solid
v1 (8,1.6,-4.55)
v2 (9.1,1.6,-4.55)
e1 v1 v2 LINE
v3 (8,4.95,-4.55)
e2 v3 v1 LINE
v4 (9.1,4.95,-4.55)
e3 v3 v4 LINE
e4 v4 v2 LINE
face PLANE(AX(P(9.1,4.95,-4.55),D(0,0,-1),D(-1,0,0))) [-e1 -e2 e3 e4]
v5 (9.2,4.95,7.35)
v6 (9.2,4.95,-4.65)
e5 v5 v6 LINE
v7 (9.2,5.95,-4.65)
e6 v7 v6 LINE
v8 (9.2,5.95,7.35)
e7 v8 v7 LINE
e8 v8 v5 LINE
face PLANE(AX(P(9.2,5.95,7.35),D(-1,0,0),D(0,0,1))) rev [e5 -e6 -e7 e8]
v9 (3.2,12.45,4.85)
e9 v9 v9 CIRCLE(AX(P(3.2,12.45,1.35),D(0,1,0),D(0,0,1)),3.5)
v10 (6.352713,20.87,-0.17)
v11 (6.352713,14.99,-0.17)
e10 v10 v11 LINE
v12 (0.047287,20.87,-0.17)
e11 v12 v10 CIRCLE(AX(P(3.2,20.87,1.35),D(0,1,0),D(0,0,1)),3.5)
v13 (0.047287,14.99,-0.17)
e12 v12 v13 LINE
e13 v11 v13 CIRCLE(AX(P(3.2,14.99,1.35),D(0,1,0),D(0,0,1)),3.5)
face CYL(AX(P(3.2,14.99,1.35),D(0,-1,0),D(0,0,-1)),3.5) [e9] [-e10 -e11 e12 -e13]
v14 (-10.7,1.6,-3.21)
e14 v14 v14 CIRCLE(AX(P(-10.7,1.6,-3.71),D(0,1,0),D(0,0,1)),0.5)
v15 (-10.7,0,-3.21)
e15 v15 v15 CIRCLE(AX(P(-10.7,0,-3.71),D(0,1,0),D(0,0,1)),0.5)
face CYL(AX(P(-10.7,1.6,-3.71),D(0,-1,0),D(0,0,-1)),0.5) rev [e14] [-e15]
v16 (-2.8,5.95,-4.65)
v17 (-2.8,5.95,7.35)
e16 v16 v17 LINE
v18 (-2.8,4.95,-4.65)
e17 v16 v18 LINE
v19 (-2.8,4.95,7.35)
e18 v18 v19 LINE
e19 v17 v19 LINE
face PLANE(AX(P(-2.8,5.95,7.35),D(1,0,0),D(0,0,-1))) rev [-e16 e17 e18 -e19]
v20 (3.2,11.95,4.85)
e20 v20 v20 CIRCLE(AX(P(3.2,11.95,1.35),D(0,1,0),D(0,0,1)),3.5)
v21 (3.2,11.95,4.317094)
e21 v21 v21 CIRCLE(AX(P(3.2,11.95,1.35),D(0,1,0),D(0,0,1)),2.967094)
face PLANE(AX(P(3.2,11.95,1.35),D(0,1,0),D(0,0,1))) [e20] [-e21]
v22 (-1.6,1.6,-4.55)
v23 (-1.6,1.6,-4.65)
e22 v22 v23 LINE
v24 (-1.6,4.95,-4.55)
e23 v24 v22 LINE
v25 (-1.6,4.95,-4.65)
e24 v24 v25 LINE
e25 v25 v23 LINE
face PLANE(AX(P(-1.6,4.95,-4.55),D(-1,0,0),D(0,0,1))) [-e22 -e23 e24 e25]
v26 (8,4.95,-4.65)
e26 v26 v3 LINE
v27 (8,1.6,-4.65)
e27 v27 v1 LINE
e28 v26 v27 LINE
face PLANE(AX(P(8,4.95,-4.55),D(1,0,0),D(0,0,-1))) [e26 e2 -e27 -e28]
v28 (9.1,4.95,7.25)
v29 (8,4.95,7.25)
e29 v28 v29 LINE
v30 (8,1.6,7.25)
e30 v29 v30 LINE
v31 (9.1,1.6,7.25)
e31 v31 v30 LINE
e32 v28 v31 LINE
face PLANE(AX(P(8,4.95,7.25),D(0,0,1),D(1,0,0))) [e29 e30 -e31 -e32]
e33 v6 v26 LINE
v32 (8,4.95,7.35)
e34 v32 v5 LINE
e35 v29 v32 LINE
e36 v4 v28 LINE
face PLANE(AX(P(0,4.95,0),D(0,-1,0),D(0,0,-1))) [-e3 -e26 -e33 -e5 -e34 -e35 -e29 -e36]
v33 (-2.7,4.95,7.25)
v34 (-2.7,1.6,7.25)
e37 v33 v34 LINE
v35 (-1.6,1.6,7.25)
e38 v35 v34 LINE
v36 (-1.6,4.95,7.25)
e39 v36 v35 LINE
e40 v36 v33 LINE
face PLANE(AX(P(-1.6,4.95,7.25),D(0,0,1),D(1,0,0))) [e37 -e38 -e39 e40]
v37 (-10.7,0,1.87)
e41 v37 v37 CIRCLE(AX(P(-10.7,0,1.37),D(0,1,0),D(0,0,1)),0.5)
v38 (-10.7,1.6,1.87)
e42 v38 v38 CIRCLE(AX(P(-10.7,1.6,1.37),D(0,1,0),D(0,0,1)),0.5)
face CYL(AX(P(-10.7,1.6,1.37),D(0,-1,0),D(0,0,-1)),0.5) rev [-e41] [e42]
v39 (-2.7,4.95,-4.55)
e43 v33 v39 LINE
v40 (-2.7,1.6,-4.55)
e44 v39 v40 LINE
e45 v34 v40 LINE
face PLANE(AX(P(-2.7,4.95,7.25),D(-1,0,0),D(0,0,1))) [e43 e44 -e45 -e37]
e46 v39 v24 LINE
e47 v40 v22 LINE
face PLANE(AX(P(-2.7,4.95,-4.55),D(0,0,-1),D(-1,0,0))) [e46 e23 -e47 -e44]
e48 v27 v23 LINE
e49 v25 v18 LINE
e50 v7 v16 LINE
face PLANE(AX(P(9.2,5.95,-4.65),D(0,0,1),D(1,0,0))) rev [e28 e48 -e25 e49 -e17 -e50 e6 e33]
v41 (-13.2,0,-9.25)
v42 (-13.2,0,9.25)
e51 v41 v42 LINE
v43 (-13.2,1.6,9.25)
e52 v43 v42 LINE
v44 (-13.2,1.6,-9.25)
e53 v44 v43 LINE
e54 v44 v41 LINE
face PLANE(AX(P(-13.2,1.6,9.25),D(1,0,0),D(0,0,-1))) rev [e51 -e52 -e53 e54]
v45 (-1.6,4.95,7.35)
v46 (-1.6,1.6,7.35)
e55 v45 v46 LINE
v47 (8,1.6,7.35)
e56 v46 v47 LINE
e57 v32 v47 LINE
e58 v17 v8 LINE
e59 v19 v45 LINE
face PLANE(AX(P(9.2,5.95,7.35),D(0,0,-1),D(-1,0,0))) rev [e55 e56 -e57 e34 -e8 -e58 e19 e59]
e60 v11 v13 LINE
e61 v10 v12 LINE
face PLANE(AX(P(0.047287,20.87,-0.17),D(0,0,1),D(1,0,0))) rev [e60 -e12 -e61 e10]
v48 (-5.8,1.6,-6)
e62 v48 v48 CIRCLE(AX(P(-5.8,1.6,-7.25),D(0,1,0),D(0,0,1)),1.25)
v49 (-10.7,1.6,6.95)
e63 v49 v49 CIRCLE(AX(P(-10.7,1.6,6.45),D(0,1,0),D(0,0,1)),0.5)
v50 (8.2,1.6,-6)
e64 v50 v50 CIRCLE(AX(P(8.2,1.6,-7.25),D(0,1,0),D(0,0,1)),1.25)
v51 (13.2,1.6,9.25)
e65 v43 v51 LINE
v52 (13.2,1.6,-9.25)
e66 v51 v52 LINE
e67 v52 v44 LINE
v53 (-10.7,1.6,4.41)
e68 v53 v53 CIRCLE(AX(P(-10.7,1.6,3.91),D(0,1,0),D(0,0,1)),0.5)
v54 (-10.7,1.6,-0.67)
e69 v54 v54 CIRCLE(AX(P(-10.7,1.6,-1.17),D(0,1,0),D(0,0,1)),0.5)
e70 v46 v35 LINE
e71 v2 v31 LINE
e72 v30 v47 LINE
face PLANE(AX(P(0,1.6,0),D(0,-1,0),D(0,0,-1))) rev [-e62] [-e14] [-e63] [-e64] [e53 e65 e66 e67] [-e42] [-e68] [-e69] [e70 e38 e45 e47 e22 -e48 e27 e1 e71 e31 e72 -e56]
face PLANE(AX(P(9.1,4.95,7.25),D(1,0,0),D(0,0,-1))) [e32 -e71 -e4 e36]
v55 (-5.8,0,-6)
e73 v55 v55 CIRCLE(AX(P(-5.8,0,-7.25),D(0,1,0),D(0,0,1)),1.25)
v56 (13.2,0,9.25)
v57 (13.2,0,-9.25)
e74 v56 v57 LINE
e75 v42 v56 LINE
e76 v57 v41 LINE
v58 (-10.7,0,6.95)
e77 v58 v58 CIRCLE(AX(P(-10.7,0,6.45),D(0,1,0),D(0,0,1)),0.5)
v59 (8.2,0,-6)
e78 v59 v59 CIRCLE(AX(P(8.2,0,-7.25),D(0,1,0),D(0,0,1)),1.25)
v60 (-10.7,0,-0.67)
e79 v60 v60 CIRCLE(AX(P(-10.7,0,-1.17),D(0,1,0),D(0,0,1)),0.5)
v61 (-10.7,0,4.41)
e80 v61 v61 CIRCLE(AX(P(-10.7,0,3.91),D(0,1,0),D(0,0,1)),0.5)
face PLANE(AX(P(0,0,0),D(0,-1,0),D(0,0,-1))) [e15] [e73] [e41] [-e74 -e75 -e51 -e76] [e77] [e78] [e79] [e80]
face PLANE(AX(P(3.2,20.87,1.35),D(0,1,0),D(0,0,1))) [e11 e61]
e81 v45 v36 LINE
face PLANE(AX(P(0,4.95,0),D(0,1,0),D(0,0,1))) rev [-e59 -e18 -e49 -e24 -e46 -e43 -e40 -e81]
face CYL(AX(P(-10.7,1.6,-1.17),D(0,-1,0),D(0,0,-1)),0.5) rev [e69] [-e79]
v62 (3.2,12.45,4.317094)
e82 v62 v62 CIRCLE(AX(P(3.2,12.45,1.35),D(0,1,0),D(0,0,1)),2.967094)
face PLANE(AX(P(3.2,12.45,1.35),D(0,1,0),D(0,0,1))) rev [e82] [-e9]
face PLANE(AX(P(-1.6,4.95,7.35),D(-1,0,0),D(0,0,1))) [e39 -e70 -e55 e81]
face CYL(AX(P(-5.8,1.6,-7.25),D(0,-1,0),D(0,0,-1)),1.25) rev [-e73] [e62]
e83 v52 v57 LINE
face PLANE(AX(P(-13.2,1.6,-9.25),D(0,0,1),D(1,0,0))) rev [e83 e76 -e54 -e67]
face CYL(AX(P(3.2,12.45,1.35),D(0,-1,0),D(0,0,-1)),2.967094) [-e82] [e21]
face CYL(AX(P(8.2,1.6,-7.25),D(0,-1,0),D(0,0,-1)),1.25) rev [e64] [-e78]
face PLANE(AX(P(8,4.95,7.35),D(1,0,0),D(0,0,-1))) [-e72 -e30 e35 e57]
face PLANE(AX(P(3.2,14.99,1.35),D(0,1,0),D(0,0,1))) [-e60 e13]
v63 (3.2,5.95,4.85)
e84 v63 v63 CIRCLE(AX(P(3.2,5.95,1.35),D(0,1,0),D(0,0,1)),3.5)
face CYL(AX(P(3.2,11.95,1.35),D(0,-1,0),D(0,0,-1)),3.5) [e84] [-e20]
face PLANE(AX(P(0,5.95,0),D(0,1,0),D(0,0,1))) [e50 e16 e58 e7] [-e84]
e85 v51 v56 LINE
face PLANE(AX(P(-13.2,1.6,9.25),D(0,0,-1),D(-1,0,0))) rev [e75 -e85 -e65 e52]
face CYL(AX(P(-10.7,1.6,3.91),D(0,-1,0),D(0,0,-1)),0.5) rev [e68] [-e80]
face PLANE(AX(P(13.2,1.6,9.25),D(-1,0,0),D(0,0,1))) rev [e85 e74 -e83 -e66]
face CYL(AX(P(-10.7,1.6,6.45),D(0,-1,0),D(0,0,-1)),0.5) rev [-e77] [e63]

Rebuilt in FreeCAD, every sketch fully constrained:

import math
import FreeCAD as App
import Part
import Sketcher

V = App.Vector
Q = App.Units.Quantity

doc = App.newDocument("Part")
body = doc.addObject("PartDesign::Body", "Body")

# Sketch on XZ plane
sketch1 = body.newObject("Sketcher::SketchObject", "Sketch")
sketch1.AttachmentSupport = (doc.getObject("XZ_Plane"), [""])
sketch1.MapMode = "FlatFace"
sketch1.addGeometry([
    Part.LineSegment(V(-13.2, -9.2, 0), V(-13.2, 9.2, 0)),  # 0
    Part.LineSegment(V(-13.2, 9.2, 0), V(13.2, 9.2, 0)),  # 1
    Part.LineSegment(V(13.2, 9.2, 0), V(13.2, -9.2, 0)),  # 2
    Part.LineSegment(V(13.2, -9.2, 0), V(-13.2, -9.2, 0)),  # 3
    Part.Circle(V(-10.7, 6.5, 0), V(0, 0, 1), 0.5),  # 4
    Part.Circle(V(-10.7, 3.9, 0), V(0, 0, 1), 0.5),  # 5
    Part.Circle(V(-10.7, 1.4, 0), V(0, 0, 1), 0.5),  # 6
    Part.Circle(V(-10.7, -1.2, 0), V(0, 0, 1), 0.5),  # 7
    Part.Circle(V(-10.7, -3.7, 0), V(0, 0, 1), 0.5),  # 8
    Part.Circle(V(-5.8, -7.2, 0), V(0, 0, 1), 1.2),  # 9
    Part.Circle(V(8.2, -7.2, 0), V(0, 0, 1), 1.2),  # 10
], False)
sketch1.addConstraint([
    Sketcher.Constraint("Coincident", 0, 2, 1, 1),
    Sketcher.Constraint("Coincident", 1, 2, 2, 1),
    Sketcher.Constraint("Coincident", 2, 2, 3, 1),
    Sketcher.Constraint("Coincident", 3, 2, 0, 1),
    Sketcher.Constraint("Vertical", 0),
    Sketcher.Constraint("Horizontal", 1),
    Sketcher.Constraint("Vertical", 2),
    Sketcher.Constraint("Horizontal", 3),
    Sketcher.Constraint("Equal", 4, 5),
    Sketcher.Constraint("Equal", 5, 6),
    Sketcher.Constraint("Equal", 6, 7),
    Sketcher.Constraint("Equal", 7, 8),
    Sketcher.Constraint("Equal", 9, 10),
    Sketcher.Constraint("Symmetric", 0, 2, 2, 2, -1, 1),
    Sketcher.Constraint("Horizontal", 9, 3, 10, 3),
    Sketcher.Constraint("Vertical", 4, 3, 5, 3),
    Sketcher.Constraint("Vertical", 5, 3, 6, 3),
    Sketcher.Constraint("Vertical", 6, 3, 7, 3),
    Sketcher.Constraint("Vertical", 7, 3, 8, 3),
    Sketcher.Constraint("Diameter", 4, Q("1 mm")),
    Sketcher.Constraint("Diameter", 9, Q("2.5 mm")),
    Sketcher.Constraint("DistanceX", 1, 1, 1, 2, Q("26.4 mm")),
    Sketcher.Constraint("DistanceY", 0, 1, 0, 2, Q("18.5 mm")),
    Sketcher.Constraint("DistanceX", 9, 3, 10, 3, Q("14 mm")),
    Sketcher.Constraint("DistanceX", 10, 3, 1, 2, Q("5 mm")),
    Sketcher.Constraint("DistanceY", 2, 2, 10, 3, Q("2 mm")),
    Sketcher.Constraint("DistanceX", 4, 3, -1, 1, Q("10.7 mm")),
    Sketcher.Constraint("DistanceY", 9, 3, 4, 3, Q("13.7 mm")),
    Sketcher.Constraint("DistanceY", -1, 1, 5, 3, Q("3.91 mm")),
    Sketcher.Constraint("DistanceY", -1, 1, 6, 3, Q("1.37 mm")),
    Sketcher.Constraint("DistanceY", 7, 3, -1, 1, Q("1.17 mm")),
    Sketcher.Constraint("DistanceY", 8, 3, -1, 1, Q("3.71 mm")),
])
pad1 = body.newObject("PartDesign::Pad", "Pad")
pad1.Profile = sketch1
pad1.Length = 1.6
pad1.Reversed = True

# Sketch on XZ plane
sketch2 = body.newObject("Sketcher::SketchObject", "Sketch001")
sketch2.AttachmentSupport = (doc.getObject("XZ_Plane"), [""])
sketch2.MapMode = "FlatFace"
sketch2.AttachmentOffset = App.Placement(V(0, 0, -1.6), App.Rotation())
sketch2.addGeometry([
    Part.LineSegment(V(-3, -5, 0), V(-3, 7, 0)),
    Part.LineSegment(V(-3, 7, 0), V(9, 7, 0)),
    Part.LineSegment(V(9, 7, 0), V(9, -5, 0)),
    Part.LineSegment(V(9, -5, 0), V(-3, -5, 0)),
], False)
sketch2.addConstraint([
    Sketcher.Constraint("Coincident", 0, 2, 1, 1),
    Sketcher.Constraint("Coincident", 1, 2, 2, 1),
    Sketcher.Constraint("Coincident", 2, 2, 3, 1),
    Sketcher.Constraint("Coincident", 3, 2, 0, 1),
    Sketcher.Constraint("Vertical", 0),
    Sketcher.Constraint("Horizontal", 1),
    Sketcher.Constraint("Vertical", 2),
    Sketcher.Constraint("Horizontal", 3),
    Sketcher.Constraint("Equal", 3, 0),
    Sketcher.Constraint("DistanceX", 1, 1, 1, 2, Q("12 mm")),
    Sketcher.Constraint("DistanceX", 0, 2, -1, 1, Q("2.8 mm")),
    Sketcher.Constraint("DistanceY", -1, 1, 0, 2, Q("7.35 mm")),
])
pad2 = body.newObject("PartDesign::Pad", "Pad001")
pad2.Profile = sketch2
pad2.Length = 4.35
pad2.Reversed = True

# Sketch on XZ plane
sketch3 = body.newObject("Sketcher::SketchObject", "Sketch002")
sketch3.AttachmentSupport = (doc.getObject("XZ_Plane"), [""])
sketch3.MapMode = "FlatFace"
sketch3.AttachmentOffset = App.Placement(V(0, 0, -1.6), App.Rotation())
sketch3.addGeometry([
    Part.LineSegment(V(-1.6, -4.65, 0), V(-2.8, -4.65, 0)),  # 0
    Part.LineSegment(V(-2.8, -4.65, 0), V(-2.8, 7.35, 0)),  # 1
    Part.LineSegment(V(-2.8, 7.35, 0), V(-1.6, 7.35, 0)),  # 2
    Part.LineSegment(V(-1.6, 7.35, 0), V(-1.6, 7.25, 0)),  # 3
    Part.LineSegment(V(-1.6, 7.25, 0), V(-2.7, 7.25, 0)),  # 4
    Part.LineSegment(V(-2.7, 7.25, 0), V(-2.7, -4.55, 0)),  # 5
    Part.LineSegment(V(-2.7, -4.55, 0), V(-1.6, -4.55, 0)),  # 6
    Part.LineSegment(V(-1.6, -4.55, 0), V(-1.6, -4.65, 0)),  # 7
    Part.LineSegment(V(8, 7.25, 0), V(8, 7.35, 0)),  # 8
    Part.LineSegment(V(8, 7.35, 0), V(9.2, 7.35, 0)),  # 9
    Part.LineSegment(V(9.2, 7.35, 0), V(9.2, -4.65, 0)),  # 10
    Part.LineSegment(V(9.2, -4.65, 0), V(8, -4.65, 0)),  # 11
    Part.LineSegment(V(8, -4.65, 0), V(8, -4.55, 0)),  # 12
    Part.LineSegment(V(8, -4.55, 0), V(9.1, -4.55, 0)),  # 13
    Part.LineSegment(V(9.1, -4.55, 0), V(9.1, 7.25, 0)),  # 14
    Part.LineSegment(V(9.1, 7.25, 0), V(8, 7.25, 0)),  # 15
], False)
sketch3.addConstraint([
    Sketcher.Constraint("Coincident", 0, 2, 1, 1),
    Sketcher.Constraint("Coincident", 1, 2, 2, 1),
    Sketcher.Constraint("Coincident", 2, 2, 3, 1),
    Sketcher.Constraint("Coincident", 3, 2, 4, 1),
    Sketcher.Constraint("Coincident", 4, 2, 5, 1),
    Sketcher.Constraint("Coincident", 5, 2, 6, 1),
    Sketcher.Constraint("Coincident", 6, 2, 7, 1),
    Sketcher.Constraint("Coincident", 7, 2, 0, 1),
    Sketcher.Constraint("Coincident", 8, 2, 9, 1),
    Sketcher.Constraint("Coincident", 9, 2, 10, 1),
    Sketcher.Constraint("Coincident", 10, 2, 11, 1),
    Sketcher.Constraint("Coincident", 11, 2, 12, 1),
    Sketcher.Constraint("Coincident", 12, 2, 13, 1),
    Sketcher.Constraint("Coincident", 13, 2, 14, 1),
    Sketcher.Constraint("Coincident", 14, 2, 15, 1),
    Sketcher.Constraint("Coincident", 15, 2, 8, 1),
    Sketcher.Constraint("Horizontal", 0),
    Sketcher.Constraint("Vertical", 1),
    Sketcher.Constraint("Horizontal", 2),
    Sketcher.Constraint("Vertical", 3),
    Sketcher.Constraint("Horizontal", 4),
    Sketcher.Constraint("Vertical", 5),
    Sketcher.Constraint("Horizontal", 6),
    Sketcher.Constraint("Vertical", 7),
    Sketcher.Constraint("Vertical", 8),
    Sketcher.Constraint("Horizontal", 9),
    Sketcher.Constraint("Vertical", 10),
    Sketcher.Constraint("Horizontal", 11),
    Sketcher.Constraint("Vertical", 12),
    Sketcher.Constraint("Horizontal", 13),
    Sketcher.Constraint("Vertical", 14),
    Sketcher.Constraint("Horizontal", 15),
    Sketcher.Constraint("Horizontal", 2, 2, 8, 2),
    Sketcher.Constraint("Horizontal", 7, 2, 10, 2),
    Sketcher.Constraint("Horizontal", 6, 2, 12, 2),
    Sketcher.Constraint("Horizontal", 4, 2, 14, 2),
    Sketcher.Constraint("Vertical", 3, 2, 6, 2),
    Sketcher.Constraint("Vertical", 8, 2, 11, 2),
    Sketcher.Constraint("Equal", 2, 9),
    Sketcher.Constraint("Equal", 6, 13),
    Sketcher.Constraint("Equal", 3, 7),
    Sketcher.Constraint("DistanceY", 1, 1, 1, 2, Q("12 mm")),
    Sketcher.Constraint("DistanceX", 0, 2, 0, 1, Q("1.2 mm")),
    Sketcher.Constraint("DistanceX", 4, 2, 4, 1, Q("1.1 mm")),
    Sketcher.Constraint("DistanceY", 3, 2, 3, 1, Q("0.1 mm")),
    Sketcher.Constraint("DistanceX", -1, 1, 8, 2, Q("8 mm")),
    Sketcher.Constraint("DistanceX", 1, 2, 9, 2, Q("12 mm")),
    Sketcher.Constraint("DistanceY", 0, 2, -1, 1, Q("4.65 mm")),
])
pocket1 = body.newObject("PartDesign::Pocket", "Pocket")
pocket1.Profile = sketch3
pocket1.Length = 3.35

# Sketch on XZ plane
sketch4 = body.newObject("Sketcher::SketchObject", "Sketch003")
sketch4.AttachmentSupport = (doc.getObject("XZ_Plane"), [""])
sketch4.MapMode = "FlatFace"
sketch4.AttachmentOffset = App.Placement(V(0, 0, -5.95), App.Rotation())
sketch4.addGeometry(Part.Circle(V(3.2, 1.4, 0), V(0, 0, 1), 3.5), False)
sketch4.addConstraint([
    Sketcher.Constraint("Diameter", 0, Q("7 mm")),
    Sketcher.Constraint("DistanceX", -1, 1, 0, 3, Q("3.2 mm")),
    Sketcher.Constraint("DistanceY", -1, 1, 0, 3, Q("1.35 mm")),
])
pad3 = body.newObject("PartDesign::Pad", "Pad002")
pad3.Profile = sketch4
pad3.Length = 6
pad3.Reversed = True

# Sketch on XZ plane
sketch5 = body.newObject("Sketcher::SketchObject", "Sketch004")
sketch5.AttachmentSupport = (doc.getObject("XZ_Plane"), [""])
sketch5.MapMode = "FlatFace"
sketch5.AttachmentOffset = App.Placement(V(0, 0, -11.95), App.Rotation())
sketch5.addGeometry(Part.Circle(V(3.2, 1.4, 0), V(0, 0, 1), 3), False)
sketch5.addConstraint([
    Sketcher.Constraint("DistanceX", -1, 1, 0, 3, Q("3.2 mm")),
    Sketcher.Constraint("Diameter", 0, Q("5.934189 mm")),
    Sketcher.Constraint("DistanceY", -1, 1, 0, 3, Q("1.35 mm")),
])
pad4 = body.newObject("PartDesign::Pad", "Pad003")
pad4.Profile = sketch5
pad4.Length = 0.5
pad4.Reversed = True

# Sketch on XZ plane
sketch6 = body.newObject("Sketcher::SketchObject", "Sketch005")
sketch6.AttachmentSupport = (doc.getObject("XZ_Plane"), [""])
sketch6.MapMode = "FlatFace"
sketch6.AttachmentOffset = App.Placement(V(0, 0, -12.45), App.Rotation())
sketch6.addGeometry(Part.Circle(V(3.2, 1.4, 0), V(0, 0, 1), 3.5), False)
sketch6.addConstraint([
    Sketcher.Constraint("Diameter", 0, Q("7 mm")),
    Sketcher.Constraint("DistanceX", -1, 1, 0, 3, Q("3.2 mm")),
    Sketcher.Constraint("DistanceY", -1, 1, 0, 3, Q("1.35 mm")),
])
pad5 = body.newObject("PartDesign::Pad", "Pad004")
pad5.Profile = sketch6
pad5.Length = 2.54
pad5.Reversed = True

# Sketch on XZ plane
sketch7 = body.newObject("Sketcher::SketchObject", "Sketch006")
sketch7.AttachmentSupport = (doc.getObject("XZ_Plane"), [""])
sketch7.MapMode = "FlatFace"
sketch7.AttachmentOffset = App.Placement(V(0, 0, -14.99), App.Rotation())
sketch7.addGeometry([
    Part.LineSegment(V(6.4, -0.2, 0), V(0, -0.2, 0)),
    Part.ArcOfCircle(Part.Circle(V(3.2, 1.4, 0), V(0, 0, 1), 3.5), math.radians(-26), math.radians(206)),
], False)
sketch7.addConstraint([
    Sketcher.Constraint("Coincident", 0, 1, 1, 1),
    Sketcher.Constraint("Coincident", 1, 2, 0, 2),
    Sketcher.Constraint("Horizontal", 0),
    Sketcher.Constraint("Radius", 1, Q("3.5 mm")),
    Sketcher.Constraint("DistanceX", -1, 1, 1, 3, Q("3.2 mm")),
    Sketcher.Constraint("DistanceY", -1, 1, 1, 3, Q("1.35 mm")),
    Sketcher.Constraint("DistanceY", 0, 1, -1, 1, Q("0.17 mm")),
])
pad6 = body.newObject("PartDesign::Pad", "Pad005")
pad6.Profile = sketch7
pad6.Length = 5.88
pad6.Reversed = True

doc.recompute()
